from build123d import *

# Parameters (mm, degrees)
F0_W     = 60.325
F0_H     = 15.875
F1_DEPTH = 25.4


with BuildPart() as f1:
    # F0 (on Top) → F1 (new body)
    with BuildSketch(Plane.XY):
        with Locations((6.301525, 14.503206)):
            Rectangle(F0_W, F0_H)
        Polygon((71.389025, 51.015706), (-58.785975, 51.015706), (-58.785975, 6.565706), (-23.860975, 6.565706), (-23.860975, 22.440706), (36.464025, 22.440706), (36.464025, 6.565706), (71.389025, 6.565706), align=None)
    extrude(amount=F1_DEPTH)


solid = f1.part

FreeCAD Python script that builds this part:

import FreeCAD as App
import Part
import Sketcher

V = App.Vector
Q = App.Units.Quantity


def add_polygon(sketch, points):
    """Adds a closed chain of lines whose ends are joined by coincident constraints."""
    first, n = sketch.GeometryCount, len(points)
    for a, b in zip(points, points[1:] + points[:1]):
        sketch.addGeometry(Part.LineSegment(App.Vector(*a, 0), App.Vector(*b, 0)), False)
    for i in range(n):
        sketch.addConstraint(Sketcher.Constraint("Coincident", first + i, 2, first + (i + 1) % n, 1))

doc = App.newDocument("Part")
body = doc.addObject("PartDesign::Body", "Body")

# Sketch on XY plane
sketch1 = body.newObject("Sketcher::SketchObject", "Sketch")
sketch1.AttachmentSupport = (doc.getObject("XY_Plane"), [""])
sketch1.MapMode = "FlatFace"
add_polygon(sketch1, [(71, 7), (71, 51), (-59, 51), (-59, 7)])  # lines 0-3
sketch1.addConstraint(Sketcher.Constraint("Vertical", 0))
sketch1.addConstraint(Sketcher.Constraint("Horizontal", 1))
sketch1.addConstraint(Sketcher.Constraint("Vertical", 2))
sketch1.addConstraint(Sketcher.Constraint("Horizontal", 3))
sketch1.addConstraint(Sketcher.Constraint("DistanceY", 0, 1, 0, 2, Q("1.75 in")))
sketch1.addConstraint(Sketcher.Constraint("DistanceX", 1, 2, 1, 1, Q("5.125 in")))
sketch1.addConstraint(Sketcher.Constraint("DistanceX", -1, 1, 0, 2, Q("71.389025 mm")))
sketch1.addConstraint(Sketcher.Constraint("DistanceY", -1, 1, 0, 2, Q("51.015706 mm")))
pad1 = body.newObject("PartDesign::Pad", "Pad")
pad1.Profile = sketch1
pad1.Length = Q("1 in")

doc.recompute()
